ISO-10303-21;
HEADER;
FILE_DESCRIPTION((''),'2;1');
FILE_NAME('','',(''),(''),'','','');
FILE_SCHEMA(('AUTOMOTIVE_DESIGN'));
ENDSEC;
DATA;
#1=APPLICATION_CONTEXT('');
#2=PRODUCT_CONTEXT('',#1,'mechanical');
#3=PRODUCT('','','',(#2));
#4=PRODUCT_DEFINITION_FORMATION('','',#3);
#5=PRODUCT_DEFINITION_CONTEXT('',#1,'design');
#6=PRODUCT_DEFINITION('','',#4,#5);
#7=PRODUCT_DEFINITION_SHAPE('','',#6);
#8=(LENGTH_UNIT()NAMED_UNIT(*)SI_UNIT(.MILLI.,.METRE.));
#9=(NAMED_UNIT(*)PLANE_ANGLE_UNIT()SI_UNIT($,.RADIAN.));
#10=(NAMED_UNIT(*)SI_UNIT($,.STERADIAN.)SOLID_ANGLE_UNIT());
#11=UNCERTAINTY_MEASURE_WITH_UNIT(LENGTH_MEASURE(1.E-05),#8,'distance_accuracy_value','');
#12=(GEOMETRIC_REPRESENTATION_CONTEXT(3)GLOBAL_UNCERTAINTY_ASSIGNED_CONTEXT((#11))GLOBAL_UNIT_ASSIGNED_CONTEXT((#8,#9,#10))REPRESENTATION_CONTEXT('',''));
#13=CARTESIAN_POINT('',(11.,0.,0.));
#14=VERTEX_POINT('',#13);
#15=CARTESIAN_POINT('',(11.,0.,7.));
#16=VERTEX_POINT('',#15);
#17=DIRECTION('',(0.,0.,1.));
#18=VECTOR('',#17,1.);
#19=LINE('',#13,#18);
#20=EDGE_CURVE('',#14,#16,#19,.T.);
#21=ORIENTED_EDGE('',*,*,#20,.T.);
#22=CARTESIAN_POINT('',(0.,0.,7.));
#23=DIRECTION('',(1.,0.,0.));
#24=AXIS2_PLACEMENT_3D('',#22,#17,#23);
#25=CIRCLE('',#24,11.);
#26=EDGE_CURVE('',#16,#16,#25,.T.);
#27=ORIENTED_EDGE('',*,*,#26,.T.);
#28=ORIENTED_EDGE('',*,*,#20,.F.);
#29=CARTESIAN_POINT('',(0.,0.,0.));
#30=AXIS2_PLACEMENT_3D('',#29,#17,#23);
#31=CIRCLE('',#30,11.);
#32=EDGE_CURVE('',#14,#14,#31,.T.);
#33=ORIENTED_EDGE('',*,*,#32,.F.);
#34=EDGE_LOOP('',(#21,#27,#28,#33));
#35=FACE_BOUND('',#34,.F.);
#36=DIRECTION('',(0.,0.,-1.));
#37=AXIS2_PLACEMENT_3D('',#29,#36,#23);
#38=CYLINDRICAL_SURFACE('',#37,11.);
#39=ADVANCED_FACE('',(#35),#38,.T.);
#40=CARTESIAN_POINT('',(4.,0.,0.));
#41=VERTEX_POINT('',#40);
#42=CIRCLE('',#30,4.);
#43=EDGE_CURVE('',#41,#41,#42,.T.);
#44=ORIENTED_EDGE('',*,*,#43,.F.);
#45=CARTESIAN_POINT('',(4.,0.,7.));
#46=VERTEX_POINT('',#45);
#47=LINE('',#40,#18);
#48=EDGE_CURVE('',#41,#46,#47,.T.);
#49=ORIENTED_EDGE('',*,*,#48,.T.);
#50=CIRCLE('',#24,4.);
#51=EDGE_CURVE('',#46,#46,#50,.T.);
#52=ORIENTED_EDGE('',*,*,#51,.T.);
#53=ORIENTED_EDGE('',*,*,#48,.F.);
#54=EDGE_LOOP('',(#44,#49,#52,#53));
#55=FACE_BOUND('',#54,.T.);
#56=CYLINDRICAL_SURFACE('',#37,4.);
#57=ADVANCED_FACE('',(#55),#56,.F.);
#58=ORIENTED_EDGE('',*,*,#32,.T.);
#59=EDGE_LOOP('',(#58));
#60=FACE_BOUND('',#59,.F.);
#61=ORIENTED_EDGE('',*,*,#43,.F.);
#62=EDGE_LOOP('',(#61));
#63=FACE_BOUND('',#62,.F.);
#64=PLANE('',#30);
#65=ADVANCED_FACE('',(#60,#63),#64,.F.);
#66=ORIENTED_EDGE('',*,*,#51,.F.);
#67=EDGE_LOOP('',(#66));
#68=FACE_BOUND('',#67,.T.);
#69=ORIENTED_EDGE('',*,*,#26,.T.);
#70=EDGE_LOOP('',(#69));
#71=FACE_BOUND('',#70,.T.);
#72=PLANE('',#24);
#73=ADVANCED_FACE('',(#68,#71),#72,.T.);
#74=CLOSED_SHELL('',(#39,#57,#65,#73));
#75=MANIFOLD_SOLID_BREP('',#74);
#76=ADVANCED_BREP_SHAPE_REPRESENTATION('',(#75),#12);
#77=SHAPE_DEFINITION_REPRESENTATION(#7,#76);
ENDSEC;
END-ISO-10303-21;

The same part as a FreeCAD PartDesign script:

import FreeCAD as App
import Part
import Sketcher

V = App.Vector
Q = App.Units.Quantity

doc = App.newDocument("Part")
body = doc.addObject("PartDesign::Body", "Body")

# Sketch on XY plane
sketch1 = body.newObject("Sketcher::SketchObject", "Sketch")
sketch1.AttachmentSupport = (doc.getObject("XY_Plane"), [""])
sketch1.MapMode = "FlatFace"
sketch1.addGeometry(Part.Circle(V(0, 0, 0), V(0, 0, 1), 11), False)
sketch1.addGeometry(Part.Circle(V(0, 0, 0), V(0, 0, 1), 4), False)
sketch1.addConstraint(Sketcher.Constraint("Coincident", 0, 3, -1, 1))
sketch1.addConstraint(Sketcher.Constraint("Coincident", 1, 3, -1, 1))
sketch1.addConstraint(Sketcher.Constraint("Diameter", 0, Q("22 mm")))
sketch1.addConstraint(Sketcher.Constraint("Diameter", 1, Q("8 mm")))
pad1 = body.newObject("PartDesign::Pad", "Pad")
pad1.Profile = sketch1
pad1.Length = 7

doc.recompute()
